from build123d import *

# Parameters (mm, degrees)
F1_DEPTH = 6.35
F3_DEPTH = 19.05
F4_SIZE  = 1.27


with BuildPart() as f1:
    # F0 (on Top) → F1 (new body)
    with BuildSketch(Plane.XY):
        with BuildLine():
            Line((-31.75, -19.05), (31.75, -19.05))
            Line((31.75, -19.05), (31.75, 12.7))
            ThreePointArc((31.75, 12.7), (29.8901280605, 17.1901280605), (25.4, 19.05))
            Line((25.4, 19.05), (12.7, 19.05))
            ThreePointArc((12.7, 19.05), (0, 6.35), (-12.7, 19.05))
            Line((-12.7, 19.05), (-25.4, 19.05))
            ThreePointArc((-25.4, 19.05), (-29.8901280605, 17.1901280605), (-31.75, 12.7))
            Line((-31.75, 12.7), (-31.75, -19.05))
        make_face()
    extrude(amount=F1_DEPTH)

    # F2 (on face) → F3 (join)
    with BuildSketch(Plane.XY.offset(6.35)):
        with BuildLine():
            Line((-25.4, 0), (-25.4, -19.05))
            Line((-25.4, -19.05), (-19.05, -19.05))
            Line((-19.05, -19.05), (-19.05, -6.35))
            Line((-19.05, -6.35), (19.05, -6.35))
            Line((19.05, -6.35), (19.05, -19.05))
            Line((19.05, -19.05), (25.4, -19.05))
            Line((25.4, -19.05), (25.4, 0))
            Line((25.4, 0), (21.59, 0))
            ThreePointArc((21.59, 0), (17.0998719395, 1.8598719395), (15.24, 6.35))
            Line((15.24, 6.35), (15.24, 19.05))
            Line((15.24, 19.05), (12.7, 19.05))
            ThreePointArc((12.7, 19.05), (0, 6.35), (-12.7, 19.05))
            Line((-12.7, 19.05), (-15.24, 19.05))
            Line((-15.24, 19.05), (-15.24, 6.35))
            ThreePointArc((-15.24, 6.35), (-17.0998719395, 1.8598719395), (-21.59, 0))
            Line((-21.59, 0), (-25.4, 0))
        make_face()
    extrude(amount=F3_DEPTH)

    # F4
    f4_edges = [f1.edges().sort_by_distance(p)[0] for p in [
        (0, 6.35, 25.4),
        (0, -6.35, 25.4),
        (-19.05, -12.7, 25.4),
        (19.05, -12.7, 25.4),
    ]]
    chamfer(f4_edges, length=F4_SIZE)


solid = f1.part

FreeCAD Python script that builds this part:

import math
import FreeCAD as App
import Part
import Sketcher

V = App.Vector
Q = App.Units.Quantity


def edges_at(feature, points):
    """Names of the edges that pass closest to the given points."""
    edges = feature.Shape.Edges
    near = lambda p: min(range(len(edges)), key=lambda i: edges[i].distToShape(Part.Vertex(*p))[0])
    return sorted({f"Edge{near(p) + 1}" for p in points})

doc = App.newDocument("Part")
body = doc.addObject("PartDesign::Body", "Body")

# Sketch on XY plane
sketch1 = body.newObject("Sketcher::SketchObject", "Sketch")
sketch1.AttachmentSupport = (doc.getObject("XY_Plane"), [""])
sketch1.MapMode = "FlatFace"
sketch1.addGeometry(Part.LineSegment(V(-32, -19, 0), V(32, -19, 0)), False)
sketch1.addGeometry(Part.LineSegment(V(32, -19, 0), V(32, 13, 0)), False)
sketch1.addGeometry(Part.ArcOfCircle(Part.Circle(V(25, 13, 0), V(0, 0, 1), 6), math.radians(0), math.radians(90)), False)
sketch1.addGeometry(Part.LineSegment(V(25, 19, 0), V(13, 19, 0)), False)
sketch1.addGeometry(Part.ArcOfCircle(Part.Circle(V(0, 19, 0), V(0, 0, 1), 13), math.radians(180), math.radians(360)), False)
sketch1.addGeometry(Part.LineSegment(V(-13, 19, 0), V(-25, 19, 0)), False)
sketch1.addGeometry(Part.ArcOfCircle(Part.Circle(V(-25, 13, 0), V(0, 0, 1), 6), math.radians(90), math.radians(180)), False)
sketch1.addGeometry(Part.LineSegment(V(-32, 13, 0), V(-32, -19, 0)), False)
sketch1.addConstraint(Sketcher.Constraint("Coincident", 0, 2, 1, 1))
sketch1.addConstraint(Sketcher.Constraint("Tangent", 1, 2, 2, 1))
sketch1.addConstraint(Sketcher.Constraint("Tangent", 2, 2, 3, 1))
sketch1.addConstraint(Sketcher.Constraint("Coincident", 3, 2, 4, 2))
sketch1.addConstraint(Sketcher.Constraint("Coincident", 4, 1, 5, 1))
sketch1.addConstraint(Sketcher.Constraint("Tangent", 5, 2, 6, 1))
sketch1.addConstraint(Sketcher.Constraint("Tangent", 6, 2, 7, 1))
sketch1.addConstraint(Sketcher.Constraint("Coincident", 7, 2, 0, 1))
sketch1.addConstraint(Sketcher.Constraint("Horizontal", 0))
sketch1.addConstraint(Sketcher.Constraint("Vertical", 1))
sketch1.addConstraint(Sketcher.Constraint("Horizontal", 3))
sketch1.addConstraint(Sketcher.Constraint("Horizontal", 5))
sketch1.addConstraint(Sketcher.Constraint("Vertical", 7))
sketch1.addConstraint(Sketcher.Constraint("Equal", 2, 6))
sketch1.addConstraint(Sketcher.Constraint("Symmetric", 2, 3, 6, 3, -2))
sketch1.addConstraint(Sketcher.Constraint("PointOnObject", 4, 3, -2))
sketch1.addConstraint(Sketcher.Constraint("Horizontal", 4, 3, 2, 2))
sketch1.addConstraint(Sketcher.Constraint("Radius", 4, Q("0.5 in")))
sketch1.addConstraint(Sketcher.Constraint("Radius", 2, Q("0.25 in")))
sketch1.addConstraint(Sketcher.Constraint("DistanceX", 0, 1, 0, 2, Q("2.5 in")))
sketch1.addConstraint(Sketcher.Constraint("DistanceY", 1, 1, 1, 2, Q("1.25 in")))
sketch1.addConstraint(Sketcher.Constraint("DistanceY", -1, 1, 2, 3, Q("0.5 in")))
pad1 = body.newObject("PartDesign::Pad", "Pad")
pad1.Profile = sketch1
pad1.Length = Q("0.25 in")

# Sketch on XY plane
sketch2 = body.newObject("Sketcher::SketchObject", "Sketch001")
sketch2.AttachmentSupport = (doc.getObject("XY_Plane"), [""])
sketch2.MapMode = "FlatFace"
sketch2.AttachmentOffset = App.Placement(V(0, 0, 0.25 * 25.4), App.Rotation())
sketch2.addGeometry(Part.LineSegment(V(-25.4, 0, 0), V(-25.4, -19.1, 0)), False)
sketch2.addGeometry(Part.LineSegment(V(-25.4, -19.1, 0), V(-19.1, -19.1, 0)), False)
sketch2.addGeometry(Part.LineSegment(V(-19.1, -19.1, 0), V(-19.1, -6.3, 0)), False)
sketch2.addGeometry(Part.LineSegment(V(-19.1, -6.3, 0), V(19.1, -6.3, 0)), False)
sketch2.addGeometry(Part.LineSegment(V(19.1, -6.3, 0), V(19.1, -19.1, 0)), False)
sketch2.addGeometry(Part.LineSegment(V(19.1, -19.1, 0), V(25.4, -19.1, 0)), False)
sketch2.addGeometry(Part.LineSegment(V(25.4, -19.1, 0), V(25.4, 0, 0)), False)
sketch2.addGeometry(Part.LineSegment(V(25.4, 0, 0), V(21.6, 0, 0)), False)
sketch2.addGeometry(Part.ArcOfCircle(Part.Circle(V(21.6, 6.3, 0), V(0, 0, 1), 6.3), math.radians(180), math.radians(270)), False)
sketch2.addGeometry(Part.LineSegment(V(15.2, 6.3, 0), V(15.2, 19.1, 0)), False)
sketch2.addGeometry(Part.LineSegment(V(15.2, 19.1, 0), V(12.7, 19.1, 0)), False)
sketch2.addGeometry(Part.ArcOfCircle(Part.Circle(V(0, 19.1, 0), V(0, 0, 1), 12.7), math.radians(180), math.radians(360)), False)
sketch2.addGeometry(Part.LineSegment(V(-12.7, 19.1, 0), V(-15.2, 19.1, 0)), False)
sketch2.addGeometry(Part.LineSegment(V(-15.2, 19.1, 0), V(-15.2, 6.3, 0)), False)
sketch2.addGeometry(Part.ArcOfCircle(Part.Circle(V(-21.6, 6.3, 0), V(0, 0, 1), 6.3), math.radians(-90), math.radians(0)), False)
sketch2.addGeometry(Part.LineSegment(V(-21.6, 0, 0), V(-25.4, 0, 0)), False)
sketch2.addConstraint(Sketcher.Constraint("Coincident", 0, 2, 1, 1))
sketch2.addConstraint(Sketcher.Constraint("Coincident", 1, 2, 2, 1))
sketch2.addConstraint(Sketcher.Constraint("Coincident", 2, 2, 3, 1))
sketch2.addConstraint(Sketcher.Constraint("Coincident", 3, 2, 4, 1))
sketch2.addConstraint(Sketcher.Constraint("Coincident", 4, 2, 5, 1))
sketch2.addConstraint(Sketcher.Constraint("Coincident", 5, 2, 6, 1))
sketch2.addConstraint(Sketcher.Constraint("Coincident", 6, 2, 7, 1))
sketch2.addConstraint(Sketcher.Constraint("Tangent", 7, 2, 8, 2))
sketch2.addConstraint(Sketcher.Constraint("Tangent", 8, 1, 9, 1))
sketch2.addConstraint(Sketcher.Constraint("Coincident", 9, 2, 10, 1))
sketch2.addConstraint(Sketcher.Constraint("Coincident", 10, 2, 11, 2))
sketch2.addConstraint(Sketcher.Constraint("Coincident", 11, 1, 12, 1))
sketch2.addConstraint(Sketcher.Constraint("Coincident", 12, 2, 13, 1))
sketch2.addConstraint(Sketcher.Constraint("Tangent", 13, 2, 14, 2))
sketch2.addConstraint(Sketcher.Constraint("Tangent", 14, 1, 15, 1))
sketch2.addConstraint(Sketcher.Constraint("Coincident", 15, 2, 0, 1))
sketch2.addConstraint(Sketcher.Constraint("Vertical", 0))
sketch2.addConstraint(Sketcher.Constraint("Horizontal", 1))
sketch2.addConstraint(Sketcher.Constraint("Vertical", 2))
sketch2.addConstraint(Sketcher.Constraint("Horizontal", 3))
sketch2.addConstraint(Sketcher.Constraint("Vertical", 4))
sketch2.addConstraint(Sketcher.Constraint("Horizontal", 5))
sketch2.addConstraint(Sketcher.Constraint("Vertical", 6))
sketch2.addConstraint(Sketcher.Constraint("Horizontal", 7))
sketch2.addConstraint(Sketcher.Constraint("Vertical", 9))
sketch2.addConstraint(Sketcher.Constraint("Horizontal", 10))
sketch2.addConstraint(Sketcher.Constraint("Horizontal", 12))
sketch2.addConstraint(Sketcher.Constraint("Vertical", 13))
sketch2.addConstraint(Sketcher.Constraint("Horizontal", 15))
sketch2.addConstraint(Sketcher.Constraint("Equal", 8, 14))
sketch2.addConstraint(Sketcher.Constraint("Symmetric", 7, 2, 14, 1, -1, 1))
sketch2.addConstraint(Sketcher.Constraint("Symmetric", 1, 2, 4, 2, -2))
sketch2.addConstraint(Sketcher.Constraint("Symmetric", 10, 2, 11, 1, -2))
sketch2.addConstraint(Sketcher.Constraint("Symmetric", 6, 2, 15, 2, -2))
sketch2.addConstraint(Sketcher.Constraint("Horizontal", 11, 3, 9, 2))
sketch2.addConstraint(Sketcher.Constraint("Equal", 4, 9))
sketch2.addConstraint(Sketcher.Constraint("Radius", 11, Q("0.5 in")))
sketch2.addConstraint(Sketcher.Constraint("Radius", 8, Q("0.25 in")))
sketch2.addConstraint(Sketcher.Constraint("DistanceX", 3, 1, 3, 2, Q("1.5 in")))
sketch2.addConstraint(Sketcher.Constraint("DistanceX", 10, 2, 10, 1, Q("0.1 in")))
sketch2.addConstraint(Sketcher.Constraint("DistanceY", 2, 1, 2, 2, Q("0.5 in")))
sketch2.addConstraint(Sketcher.Constraint("DistanceX", 0, 2, -1, 1, Q("1 in")))
sketch2.addConstraint(Sketcher.Constraint("DistanceY", 0, 2, 14, 3, Q("1 in")))
pad2 = body.newObject("PartDesign::Pad", "Pad001")
pad2.Profile = sketch2
pad2.Length = Q("0.75 in")
doc.recompute()

chamfer = body.newObject("PartDesign::Chamfer", "Chamfer")
chamfer.Base = (pad2, edges_at(pad2, [
    (0, 6.35, 25.4),
    (0, -6.35, 25.4),
    (-19.05, -12.7, 25.4),
    (19.05, -12.7, 25.4),
]))
chamfer.Size = Q("0.05 in")

doc.recompute()
